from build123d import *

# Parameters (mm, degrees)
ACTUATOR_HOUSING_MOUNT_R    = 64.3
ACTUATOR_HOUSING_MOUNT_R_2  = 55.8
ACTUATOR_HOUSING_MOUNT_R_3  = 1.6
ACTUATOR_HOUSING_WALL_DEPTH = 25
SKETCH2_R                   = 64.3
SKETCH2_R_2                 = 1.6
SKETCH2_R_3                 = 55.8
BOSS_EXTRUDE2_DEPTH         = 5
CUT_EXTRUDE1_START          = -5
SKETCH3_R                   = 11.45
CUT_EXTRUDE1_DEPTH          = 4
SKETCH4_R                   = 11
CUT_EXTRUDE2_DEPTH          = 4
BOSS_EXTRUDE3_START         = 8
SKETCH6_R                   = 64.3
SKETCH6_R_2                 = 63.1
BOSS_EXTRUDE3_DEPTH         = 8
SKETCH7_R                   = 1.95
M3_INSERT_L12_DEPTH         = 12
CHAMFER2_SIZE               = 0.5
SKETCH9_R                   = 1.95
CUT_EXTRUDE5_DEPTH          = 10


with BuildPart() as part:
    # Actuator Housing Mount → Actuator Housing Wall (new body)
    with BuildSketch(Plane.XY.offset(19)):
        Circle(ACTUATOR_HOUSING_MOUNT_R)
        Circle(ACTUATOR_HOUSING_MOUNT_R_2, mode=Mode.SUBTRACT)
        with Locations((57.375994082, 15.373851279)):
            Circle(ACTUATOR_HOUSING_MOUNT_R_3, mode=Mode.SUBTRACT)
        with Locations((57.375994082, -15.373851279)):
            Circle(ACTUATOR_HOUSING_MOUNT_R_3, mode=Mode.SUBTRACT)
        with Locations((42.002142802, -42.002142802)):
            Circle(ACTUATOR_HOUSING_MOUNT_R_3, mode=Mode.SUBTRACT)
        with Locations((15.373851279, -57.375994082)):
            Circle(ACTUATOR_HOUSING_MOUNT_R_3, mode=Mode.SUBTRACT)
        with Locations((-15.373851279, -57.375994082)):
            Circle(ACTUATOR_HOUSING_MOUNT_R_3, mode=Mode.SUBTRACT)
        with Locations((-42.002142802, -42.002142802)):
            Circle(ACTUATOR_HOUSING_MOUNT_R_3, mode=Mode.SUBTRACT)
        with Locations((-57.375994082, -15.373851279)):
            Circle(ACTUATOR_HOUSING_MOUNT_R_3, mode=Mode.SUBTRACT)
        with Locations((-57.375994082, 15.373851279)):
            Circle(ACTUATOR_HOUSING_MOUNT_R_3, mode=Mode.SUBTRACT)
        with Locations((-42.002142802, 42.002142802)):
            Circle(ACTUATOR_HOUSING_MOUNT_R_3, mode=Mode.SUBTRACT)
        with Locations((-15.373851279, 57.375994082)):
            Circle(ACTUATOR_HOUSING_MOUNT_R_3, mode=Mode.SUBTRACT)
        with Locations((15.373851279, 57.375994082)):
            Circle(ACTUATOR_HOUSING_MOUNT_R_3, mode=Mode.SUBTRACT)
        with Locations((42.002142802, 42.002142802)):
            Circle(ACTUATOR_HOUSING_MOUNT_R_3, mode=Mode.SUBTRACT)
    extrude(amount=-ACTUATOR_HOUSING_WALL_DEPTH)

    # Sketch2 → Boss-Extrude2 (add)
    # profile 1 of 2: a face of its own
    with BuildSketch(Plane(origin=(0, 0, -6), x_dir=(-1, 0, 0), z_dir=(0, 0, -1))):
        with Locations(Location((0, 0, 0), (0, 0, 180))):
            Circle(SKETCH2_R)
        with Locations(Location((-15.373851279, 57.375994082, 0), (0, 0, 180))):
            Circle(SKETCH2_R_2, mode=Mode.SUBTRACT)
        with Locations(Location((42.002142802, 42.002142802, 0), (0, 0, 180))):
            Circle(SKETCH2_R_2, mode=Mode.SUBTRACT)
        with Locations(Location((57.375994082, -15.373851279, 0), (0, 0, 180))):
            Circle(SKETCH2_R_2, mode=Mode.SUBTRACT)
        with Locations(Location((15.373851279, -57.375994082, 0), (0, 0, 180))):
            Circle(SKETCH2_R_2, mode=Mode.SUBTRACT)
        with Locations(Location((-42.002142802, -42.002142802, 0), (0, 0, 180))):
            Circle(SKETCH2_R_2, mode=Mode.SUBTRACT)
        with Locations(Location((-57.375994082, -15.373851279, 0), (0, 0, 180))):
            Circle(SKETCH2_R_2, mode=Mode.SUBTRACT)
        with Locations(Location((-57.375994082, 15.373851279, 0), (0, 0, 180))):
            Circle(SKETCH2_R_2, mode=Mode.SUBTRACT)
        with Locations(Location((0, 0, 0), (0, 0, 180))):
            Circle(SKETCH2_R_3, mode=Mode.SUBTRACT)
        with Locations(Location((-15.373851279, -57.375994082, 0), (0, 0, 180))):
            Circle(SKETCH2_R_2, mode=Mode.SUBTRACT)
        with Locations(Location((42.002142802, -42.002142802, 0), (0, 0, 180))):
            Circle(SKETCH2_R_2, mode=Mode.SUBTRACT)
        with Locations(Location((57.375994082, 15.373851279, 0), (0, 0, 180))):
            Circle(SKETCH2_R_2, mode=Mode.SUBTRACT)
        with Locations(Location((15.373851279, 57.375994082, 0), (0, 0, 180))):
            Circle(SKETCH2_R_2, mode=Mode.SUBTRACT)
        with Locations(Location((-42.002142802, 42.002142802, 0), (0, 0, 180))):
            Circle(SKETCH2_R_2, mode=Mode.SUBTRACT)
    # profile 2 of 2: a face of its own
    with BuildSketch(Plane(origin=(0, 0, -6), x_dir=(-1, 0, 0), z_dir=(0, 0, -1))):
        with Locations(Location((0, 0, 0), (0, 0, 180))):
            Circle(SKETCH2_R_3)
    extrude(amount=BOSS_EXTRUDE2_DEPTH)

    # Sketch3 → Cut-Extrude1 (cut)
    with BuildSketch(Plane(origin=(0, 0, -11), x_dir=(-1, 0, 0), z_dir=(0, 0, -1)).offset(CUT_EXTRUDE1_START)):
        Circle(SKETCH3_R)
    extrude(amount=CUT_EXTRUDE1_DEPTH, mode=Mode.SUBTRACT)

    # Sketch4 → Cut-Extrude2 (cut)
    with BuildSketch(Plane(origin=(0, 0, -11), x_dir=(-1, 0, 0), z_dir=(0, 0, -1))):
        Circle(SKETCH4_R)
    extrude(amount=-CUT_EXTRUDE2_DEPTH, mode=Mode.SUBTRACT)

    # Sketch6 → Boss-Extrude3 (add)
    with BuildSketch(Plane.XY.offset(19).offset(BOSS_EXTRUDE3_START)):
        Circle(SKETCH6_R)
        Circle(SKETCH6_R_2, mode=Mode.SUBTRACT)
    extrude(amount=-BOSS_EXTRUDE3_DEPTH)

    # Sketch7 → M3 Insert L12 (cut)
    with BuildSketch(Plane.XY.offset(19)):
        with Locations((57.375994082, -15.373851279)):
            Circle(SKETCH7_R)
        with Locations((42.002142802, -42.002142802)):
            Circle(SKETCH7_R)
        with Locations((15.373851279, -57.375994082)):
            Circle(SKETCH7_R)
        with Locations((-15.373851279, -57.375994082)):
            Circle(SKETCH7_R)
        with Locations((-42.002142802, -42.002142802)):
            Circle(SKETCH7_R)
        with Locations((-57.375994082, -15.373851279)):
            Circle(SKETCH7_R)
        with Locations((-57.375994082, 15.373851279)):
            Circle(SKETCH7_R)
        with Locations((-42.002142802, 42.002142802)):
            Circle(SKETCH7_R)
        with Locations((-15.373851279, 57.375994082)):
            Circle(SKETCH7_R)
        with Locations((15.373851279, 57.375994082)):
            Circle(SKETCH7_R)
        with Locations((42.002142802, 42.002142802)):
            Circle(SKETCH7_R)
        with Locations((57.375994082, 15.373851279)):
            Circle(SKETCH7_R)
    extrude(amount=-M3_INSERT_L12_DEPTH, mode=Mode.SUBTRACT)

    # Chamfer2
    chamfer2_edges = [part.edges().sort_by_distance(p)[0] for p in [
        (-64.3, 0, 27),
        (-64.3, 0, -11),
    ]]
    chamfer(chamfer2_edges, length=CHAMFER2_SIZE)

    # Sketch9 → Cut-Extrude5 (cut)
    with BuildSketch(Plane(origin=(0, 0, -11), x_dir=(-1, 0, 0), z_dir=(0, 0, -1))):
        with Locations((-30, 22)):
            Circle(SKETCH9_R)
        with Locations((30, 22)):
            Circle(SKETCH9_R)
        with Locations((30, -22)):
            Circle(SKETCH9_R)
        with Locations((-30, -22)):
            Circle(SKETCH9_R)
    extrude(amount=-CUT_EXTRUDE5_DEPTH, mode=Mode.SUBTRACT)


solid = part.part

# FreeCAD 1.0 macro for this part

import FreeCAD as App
import Part
import Sketcher


def edges_at(feature, points):
    """Names of the edges that pass closest to the given points."""
    edges = feature.Shape.Edges
    near = lambda p: min(range(len(edges)), key=lambda i: edges[i].distToShape(Part.Vertex(*p))[0])
    return sorted({f"Edge{near(p) + 1}" for p in points})

doc = App.newDocument("Part")
body = doc.addObject("PartDesign::Body", "Body")

sketch1 = body.newObject("Sketcher::SketchObject", "Sketch")
sketch1.AttachmentSupport = (doc.getObject("XY_Plane"), [""])
sketch1.MapMode = "FlatFace"
sketch1.AttachmentOffset = App.Placement(App.Vector(0, 0, 19), App.Rotation())
sketch1.addGeometry([
    Part.Circle(App.Vector(0, 0, 0), App.Vector(0, 0, 1), 64.3),
    Part.Circle(App.Vector(-42.002143, -42.002143, 0), App.Vector(0, 0, 1), 1.6),
    Part.Circle(App.Vector(-15.373851, -57.375994, 0), App.Vector(0, 0, 1), 1.6),
    Part.Circle(App.Vector(-57.375994, -15.373851, 0), App.Vector(0, 0, 1), 1.6),
    Part.Circle(App.Vector(0, 0, 0), App.Vector(0, 0, 1), 55.8),
    Part.Circle(App.Vector(15.373851, -57.375994, 0), App.Vector(0, 0, 1), 1.6),
    Part.Circle(App.Vector(42.002143, -42.002143, 0), App.Vector(0, 0, 1), 1.6),
    Part.Circle(App.Vector(57.375994, -15.373851, 0), App.Vector(0, 0, 1), 1.6),
    Part.Circle(App.Vector(-57.375994, 15.373851, 0), App.Vector(0, 0, 1), 1.6),
    Part.Circle(App.Vector(-42.002143, 42.002143, 0), App.Vector(0, 0, 1), 1.6),
    Part.Circle(App.Vector(-15.373851, 57.375994, 0), App.Vector(0, 0, 1), 1.6),
    Part.Circle(App.Vector(57.375994, 15.373851, 0), App.Vector(0, 0, 1), 1.6),
    Part.Circle(App.Vector(15.373851, 57.375994, 0), App.Vector(0, 0, 1), 1.6),
    Part.Circle(App.Vector(42.002143, 42.002143, 0), App.Vector(0, 0, 1), 1.6),
], False)
sketch1.addConstraint([
    Sketcher.Constraint("Coincident", 0, 3, -1, 1),
    Sketcher.Constraint("Coincident", 4, 3, -1, 1),
    Sketcher.Constraint("Equal", 1, 2),
    Sketcher.Constraint("Equal", 2, 3),
    Sketcher.Constraint("Equal", 3, 5),
    Sketcher.Constraint("Equal", 5, 6),
    Sketcher.Constraint("Equal", 6, 7),
    Sketcher.Constraint("Equal", 7, 8),
    Sketcher.Constraint("Equal", 8, 9),
    Sketcher.Constraint("Equal", 9, 10),
    Sketcher.Constraint("Equal", 10, 11),
    Sketcher.Constraint("Equal", 11, 12),
    Sketcher.Constraint("Equal", 12, 13),
    Sketcher.Constraint("Symmetric", 7, 3, 8, 3, -1, 1),
    Sketcher.Constraint("Symmetric", 6, 3, 9, 3, -1, 1),
    Sketcher.Constraint("Symmetric", 5, 3, 10, 3, -1, 1),
    Sketcher.Constraint("Symmetric", 3, 3, 11, 3, -1, 1),
    Sketcher.Constraint("Symmetric", 2, 3, 12, 3, -1, 1),
    Sketcher.Constraint("Symmetric", 1, 3, 13, 3, -1, 1),
    Sketcher.Constraint("Symmetric", 2, 3, 5, 3, -2),
    Sketcher.Constraint("Symmetric", 1, 3, 6, 3, -2),
    Sketcher.Constraint("Symmetric", 3, 3, 7, 3, -2),
    Sketcher.Constraint("Diameter", 0, 128.6),
    Sketcher.Constraint("Diameter", 1, 3.2),
    Sketcher.Constraint("Diameter", 4, 111.6),
    Sketcher.Constraint("DistanceX", 2, 3, -1, 1, 15.373851),
    Sketcher.Constraint("DistanceY", 3, 3, -1, 1, 15.373851),
    Sketcher.Constraint("DistanceX", 1, 3, 2, 3, 26.628292),
    Sketcher.Constraint("DistanceY", 2, 3, 1, 3, 15.373851),
    Sketcher.Constraint("DistanceX", 3, 3, 1, 3, 15.373851),
    Sketcher.Constraint("DistanceY", 1, 3, 3, 3, 26.628292),
])
pad1 = body.newObject("PartDesign::Pad", "Pad")
pad1.Profile = sketch1
pad1.Length = 25
pad1.Reversed = True

sketch2 = body.newObject("Sketcher::SketchObject", "Sketch001")
sketch2.AttachmentSupport = (doc.getObject("XY_Plane"), [""])
sketch2.MapMode = "FlatFace"
sketch2.AttachmentOffset = App.Placement(App.Vector(0, 0, -6), App.Rotation())
sketch2.addGeometry([
    Part.Circle(App.Vector(0, 0, 0), App.Vector(0, 0, 1), 64.3),
    Part.Circle(App.Vector(-42.002143, 42.002143, 0), App.Vector(0, 0, 1), 1.6),
    Part.Circle(App.Vector(-15.373851, 57.375994, 0), App.Vector(0, 0, 1), 1.6),
    Part.Circle(App.Vector(-57.375994, 15.373851, 0), App.Vector(0, 0, 1), 1.6),
    Part.Circle(App.Vector(15.373851, 57.375994, 0), App.Vector(0, 0, 1), 1.6),
    Part.Circle(App.Vector(42.002143, 42.002143, 0), App.Vector(0, 0, 1), 1.6),
    Part.Circle(App.Vector(57.375994, 15.373851, 0), App.Vector(0, 0, 1), 1.6),
    Part.Circle(App.Vector(-57.375994, -15.373851, 0), App.Vector(0, 0, 1), 1.6),
    Part.Circle(App.Vector(-42.002143, -42.002143, 0), App.Vector(0, 0, 1), 1.6),
    Part.Circle(App.Vector(-15.373851, -57.375994, 0), App.Vector(0, 0, 1), 1.6),
    Part.Circle(App.Vector(57.375994, -15.373851, 0), App.Vector(0, 0, 1), 1.6),
    Part.Circle(App.Vector(15.373851, -57.375994, 0), App.Vector(0, 0, 1), 1.6),
    Part.Circle(App.Vector(42.002143, -42.002143, 0), App.Vector(0, 0, 1), 1.6),
], False)
sketch2.addConstraint([
    Sketcher.Constraint("Coincident", 0, 3, -1, 1),
    Sketcher.Constraint("Equal", 1, 2),
    Sketcher.Constraint("Equal", 2, 3),
    Sketcher.Constraint("Equal", 3, 4),
    Sketcher.Constraint("Equal", 4, 5),
    Sketcher.Constraint("Equal", 5, 6),
    Sketcher.Constraint("Equal", 6, 7),
    Sketcher.Constraint("Equal", 7, 8),
    Sketcher.Constraint("Equal", 8, 9),
    Sketcher.Constraint("Equal", 9, 10),
    Sketcher.Constraint("Equal", 10, 11),
    Sketcher.Constraint("Equal", 11, 12),
    Sketcher.Constraint("Symmetric", 6, 3, 7, 3, -1, 1),
    Sketcher.Constraint("Symmetric", 5, 3, 8, 3, -1, 1),
    Sketcher.Constraint("Symmetric", 4, 3, 9, 3, -1, 1),
    Sketcher.Constraint("Symmetric", 3, 3, 10, 3, -1, 1),
    Sketcher.Constraint("Symmetric", 2, 3, 11, 3, -1, 1),
    Sketcher.Constraint("Symmetric", 1, 3, 12, 3, -1, 1),
    Sketcher.Constraint("Symmetric", 2, 3, 4, 3, -2),
    Sketcher.Constraint("Symmetric", 1, 3, 5, 3, -2),
    Sketcher.Constraint("Symmetric", 3, 3, 6, 3, -2),
    Sketcher.Constraint("Diameter", 0, 128.6),
    Sketcher.Constraint("Diameter", 1, 3.2),
    Sketcher.Constraint("DistanceX", 2, 3, -1, 1, 15.373851),
    Sketcher.Constraint("DistanceY", -1, 1, 3, 3, 15.373851),
    Sketcher.Constraint("DistanceX", 1, 3, 2, 3, 26.628292),
    Sketcher.Constraint("DistanceY", 1, 3, 2, 3, 15.373851),
    Sketcher.Constraint("DistanceX", 3, 3, 1, 3, 15.373851),
    Sketcher.Constraint("DistanceY", 3, 3, 1, 3, 26.628292),
])
pad2 = body.newObject("PartDesign::Pad", "Pad001")
pad2.Profile = sketch2
pad2.Length = 5
pad2.Reversed = True

sketch3 = body.newObject("Sketcher::SketchObject", "Sketch002")
sketch3.AttachmentSupport = (doc.getObject("XY_Plane"), [""])
sketch3.MapMode = "FlatFace"
sketch3.AttachmentOffset = App.Placement(App.Vector(0, 0, -6), App.Rotation())
sketch3.addGeometry(Part.Circle(App.Vector(0, 0, 0), App.Vector(0, 0, 1), 11.45), False)
sketch3.addConstraint([
    Sketcher.Constraint("Coincident", 0, 3, -1, 1),
    Sketcher.Constraint("Diameter", 0, 22.9),
])
pocket1 = body.newObject("PartDesign::Pocket", "Pocket")
pocket1.Profile = sketch3
pocket1.Length = 4

sketch4 = body.newObject("Sketcher::SketchObject", "Sketch003")
sketch4.AttachmentSupport = (doc.getObject("XY_Plane"), [""])
sketch4.MapMode = "FlatFace"
sketch4.AttachmentOffset = App.Placement(App.Vector(0, 0, -11), App.Rotation())
sketch4.addGeometry(Part.Circle(App.Vector(0, 0, 0), App.Vector(0, 0, 1), 11), False)
sketch4.addConstraint([
    Sketcher.Constraint("Coincident", 0, 3, -1, 1),
    Sketcher.Constraint("Diameter", 0, 22.0),
])
pocket2 = body.newObject("PartDesign::Pocket", "Pocket001")
pocket2.Profile = sketch4
pocket2.Length = 4
pocket2.Reversed = True

sketch5 = body.newObject("Sketcher::SketchObject", "Sketch004")
sketch5.AttachmentSupport = (doc.getObject("XY_Plane"), [""])
sketch5.MapMode = "FlatFace"
sketch5.AttachmentOffset = App.Placement(App.Vector(0, 0, 27), App.Rotation())
sketch5.addGeometry([
    Part.Circle(App.Vector(0, 0, 0), App.Vector(0, 0, 1), 64.3),
    Part.Circle(App.Vector(0, 0, 0), App.Vector(0, 0, 1), 63.1),
], False)
sketch5.addConstraint([
    Sketcher.Constraint("Coincident", 0, 3, -1, 1),
    Sketcher.Constraint("Coincident", 1, 3, -1, 1),
    Sketcher.Constraint("Diameter", 0, 128.6),
    Sketcher.Constraint("Diameter", 1, 126.2),
])
pad3 = body.newObject("PartDesign::Pad", "Pad002")
pad3.Profile = sketch5
pad3.Length = 8
pad3.Reversed = True

sketch6 = body.newObject("Sketcher::SketchObject", "Sketch005")
sketch6.AttachmentSupport = (doc.getObject("XY_Plane"), [""])
sketch6.MapMode = "FlatFace"
sketch6.AttachmentOffset = App.Placement(App.Vector(0, 0, 19), App.Rotation())
sketch6.addGeometry([
    Part.Circle(App.Vector(57.375994, -15.373851, 0), App.Vector(0, 0, 1), 1.95),
    Part.Circle(App.Vector(42.002143, -42.002143, 0), App.Vector(0, 0, 1), 1.95),
    Part.Circle(App.Vector(15.373851, -57.375994, 0), App.Vector(0, 0, 1), 1.95),
    Part.Circle(App.Vector(-15.373851, -57.375994, 0), App.Vector(0, 0, 1), 1.95),
    Part.Circle(App.Vector(-42.002143, -42.002143, 0), App.Vector(0, 0, 1), 1.95),
    Part.Circle(App.Vector(-57.375994, -15.373851, 0), App.Vector(0, 0, 1), 1.95),
    Part.Circle(App.Vector(-57.375994, 15.373851, 0), App.Vector(0, 0, 1), 1.95),
    Part.Circle(App.Vector(-42.002143, 42.002143, 0), App.Vector(0, 0, 1), 1.95),
    Part.Circle(App.Vector(-15.373851, 57.375994, 0), App.Vector(0, 0, 1), 1.95),
    Part.Circle(App.Vector(15.373851, 57.375994, 0), App.Vector(0, 0, 1), 1.95),
    Part.Circle(App.Vector(42.002143, 42.002143, 0), App.Vector(0, 0, 1), 1.95),
    Part.Circle(App.Vector(57.375994, 15.373851, 0), App.Vector(0, 0, 1), 1.95),
], False)
sketch6.addConstraint([
    Sketcher.Constraint("Equal", 0, 1),
    Sketcher.Constraint("Equal", 1, 2),
    Sketcher.Constraint("Equal", 2, 3),
    Sketcher.Constraint("Equal", 3, 4),
    Sketcher.Constraint("Equal", 4, 5),
    Sketcher.Constraint("Equal", 5, 6),
    Sketcher.Constraint("Equal", 6, 7),
    Sketcher.Constraint("Equal", 7, 8),
    Sketcher.Constraint("Equal", 8, 9),
    Sketcher.Constraint("Equal", 9, 10),
    Sketcher.Constraint("Equal", 10, 11),
    Sketcher.Constraint("Symmetric", 0, 3, 6, 3, -1, 1),
    Sketcher.Constraint("Symmetric", 1, 3, 7, 3, -1, 1),
    Sketcher.Constraint("Symmetric", 2, 3, 8, 3, -1, 1),
    Sketcher.Constraint("Symmetric", 3, 3, 9, 3, -1, 1),
    Sketcher.Constraint("Symmetric", 4, 3, 10, 3, -1, 1),
    Sketcher.Constraint("Symmetric", 5, 3, 11, 3, -1, 1),
    Sketcher.Constraint("Symmetric", 2, 3, 3, 3, -2),
    Sketcher.Constraint("Symmetric", 1, 3, 4, 3, -2),
    Sketcher.Constraint("Symmetric", 0, 3, 5, 3, -2),
    Sketcher.Constraint("Diameter", 0, 3.9),
    Sketcher.Constraint("DistanceY", 0, 3, -1, 1, 15.373851),
    Sketcher.Constraint("DistanceX", -1, 1, 2, 3, 15.373851),
    Sketcher.Constraint("DistanceX", 1, 3, 0, 3, 15.373851),
    Sketcher.Constraint("DistanceY", 1, 3, 0, 3, 26.628292),
    Sketcher.Constraint("DistanceX", 2, 3, 1, 3, 26.628292),
    Sketcher.Constraint("DistanceY", 2, 3, 1, 3, 15.373851),
])
pocket3 = body.newObject("PartDesign::Pocket", "Pocket002")
pocket3.Profile = sketch6
pocket3.Length = 12
doc.recompute()

chamfer = body.newObject("PartDesign::Chamfer", "Chamfer")
chamfer.Base = (pocket3, edges_at(pocket3, [(-64.3, 0, 27), (-64.3, 0, -11)]))
chamfer.Size = 0.5

sketch7 = body.newObject("Sketcher::SketchObject", "Sketch006")
sketch7.AttachmentSupport = (doc.getObject("XY_Plane"), [""])
sketch7.MapMode = "FlatFace"
sketch7.AttachmentOffset = App.Placement(App.Vector(0, 0, -11), App.Rotation())
sketch7.addGeometry([
    Part.Circle(App.Vector(30, 22, 0), App.Vector(0, 0, 1), 1.95),
    Part.Circle(App.Vector(-30, 22, 0), App.Vector(0, 0, 1), 1.95),
    Part.Circle(App.Vector(-30, -22, 0), App.Vector(0, 0, 1), 1.95),
    Part.Circle(App.Vector(30, -22, 0), App.Vector(0, 0, 1), 1.95),
], False)
sketch7.addConstraint([
    Sketcher.Constraint("Equal", 0, 1),
    Sketcher.Constraint("Equal", 1, 2),
    Sketcher.Constraint("Equal", 2, 3),
    Sketcher.Constraint("Symmetric", 0, 3, 2, 3, -1, 1),
    Sketcher.Constraint("Symmetric", 1, 3, 3, 3, -1, 1),
    Sketcher.Constraint("Symmetric", 0, 3, 1, 3, -2),
    Sketcher.Constraint("Diameter", 0, 3.9),
    Sketcher.Constraint("DistanceX", -1, 1, 0, 3, 30.0),
    Sketcher.Constraint("DistanceY", -1, 1, 0, 3, 22.0),
])
pocket4 = body.newObject("PartDesign::Pocket", "Pocket003")
pocket4.Profile = sketch7
pocket4.Length = 10
pocket4.Reversed = True

doc.recompute()
